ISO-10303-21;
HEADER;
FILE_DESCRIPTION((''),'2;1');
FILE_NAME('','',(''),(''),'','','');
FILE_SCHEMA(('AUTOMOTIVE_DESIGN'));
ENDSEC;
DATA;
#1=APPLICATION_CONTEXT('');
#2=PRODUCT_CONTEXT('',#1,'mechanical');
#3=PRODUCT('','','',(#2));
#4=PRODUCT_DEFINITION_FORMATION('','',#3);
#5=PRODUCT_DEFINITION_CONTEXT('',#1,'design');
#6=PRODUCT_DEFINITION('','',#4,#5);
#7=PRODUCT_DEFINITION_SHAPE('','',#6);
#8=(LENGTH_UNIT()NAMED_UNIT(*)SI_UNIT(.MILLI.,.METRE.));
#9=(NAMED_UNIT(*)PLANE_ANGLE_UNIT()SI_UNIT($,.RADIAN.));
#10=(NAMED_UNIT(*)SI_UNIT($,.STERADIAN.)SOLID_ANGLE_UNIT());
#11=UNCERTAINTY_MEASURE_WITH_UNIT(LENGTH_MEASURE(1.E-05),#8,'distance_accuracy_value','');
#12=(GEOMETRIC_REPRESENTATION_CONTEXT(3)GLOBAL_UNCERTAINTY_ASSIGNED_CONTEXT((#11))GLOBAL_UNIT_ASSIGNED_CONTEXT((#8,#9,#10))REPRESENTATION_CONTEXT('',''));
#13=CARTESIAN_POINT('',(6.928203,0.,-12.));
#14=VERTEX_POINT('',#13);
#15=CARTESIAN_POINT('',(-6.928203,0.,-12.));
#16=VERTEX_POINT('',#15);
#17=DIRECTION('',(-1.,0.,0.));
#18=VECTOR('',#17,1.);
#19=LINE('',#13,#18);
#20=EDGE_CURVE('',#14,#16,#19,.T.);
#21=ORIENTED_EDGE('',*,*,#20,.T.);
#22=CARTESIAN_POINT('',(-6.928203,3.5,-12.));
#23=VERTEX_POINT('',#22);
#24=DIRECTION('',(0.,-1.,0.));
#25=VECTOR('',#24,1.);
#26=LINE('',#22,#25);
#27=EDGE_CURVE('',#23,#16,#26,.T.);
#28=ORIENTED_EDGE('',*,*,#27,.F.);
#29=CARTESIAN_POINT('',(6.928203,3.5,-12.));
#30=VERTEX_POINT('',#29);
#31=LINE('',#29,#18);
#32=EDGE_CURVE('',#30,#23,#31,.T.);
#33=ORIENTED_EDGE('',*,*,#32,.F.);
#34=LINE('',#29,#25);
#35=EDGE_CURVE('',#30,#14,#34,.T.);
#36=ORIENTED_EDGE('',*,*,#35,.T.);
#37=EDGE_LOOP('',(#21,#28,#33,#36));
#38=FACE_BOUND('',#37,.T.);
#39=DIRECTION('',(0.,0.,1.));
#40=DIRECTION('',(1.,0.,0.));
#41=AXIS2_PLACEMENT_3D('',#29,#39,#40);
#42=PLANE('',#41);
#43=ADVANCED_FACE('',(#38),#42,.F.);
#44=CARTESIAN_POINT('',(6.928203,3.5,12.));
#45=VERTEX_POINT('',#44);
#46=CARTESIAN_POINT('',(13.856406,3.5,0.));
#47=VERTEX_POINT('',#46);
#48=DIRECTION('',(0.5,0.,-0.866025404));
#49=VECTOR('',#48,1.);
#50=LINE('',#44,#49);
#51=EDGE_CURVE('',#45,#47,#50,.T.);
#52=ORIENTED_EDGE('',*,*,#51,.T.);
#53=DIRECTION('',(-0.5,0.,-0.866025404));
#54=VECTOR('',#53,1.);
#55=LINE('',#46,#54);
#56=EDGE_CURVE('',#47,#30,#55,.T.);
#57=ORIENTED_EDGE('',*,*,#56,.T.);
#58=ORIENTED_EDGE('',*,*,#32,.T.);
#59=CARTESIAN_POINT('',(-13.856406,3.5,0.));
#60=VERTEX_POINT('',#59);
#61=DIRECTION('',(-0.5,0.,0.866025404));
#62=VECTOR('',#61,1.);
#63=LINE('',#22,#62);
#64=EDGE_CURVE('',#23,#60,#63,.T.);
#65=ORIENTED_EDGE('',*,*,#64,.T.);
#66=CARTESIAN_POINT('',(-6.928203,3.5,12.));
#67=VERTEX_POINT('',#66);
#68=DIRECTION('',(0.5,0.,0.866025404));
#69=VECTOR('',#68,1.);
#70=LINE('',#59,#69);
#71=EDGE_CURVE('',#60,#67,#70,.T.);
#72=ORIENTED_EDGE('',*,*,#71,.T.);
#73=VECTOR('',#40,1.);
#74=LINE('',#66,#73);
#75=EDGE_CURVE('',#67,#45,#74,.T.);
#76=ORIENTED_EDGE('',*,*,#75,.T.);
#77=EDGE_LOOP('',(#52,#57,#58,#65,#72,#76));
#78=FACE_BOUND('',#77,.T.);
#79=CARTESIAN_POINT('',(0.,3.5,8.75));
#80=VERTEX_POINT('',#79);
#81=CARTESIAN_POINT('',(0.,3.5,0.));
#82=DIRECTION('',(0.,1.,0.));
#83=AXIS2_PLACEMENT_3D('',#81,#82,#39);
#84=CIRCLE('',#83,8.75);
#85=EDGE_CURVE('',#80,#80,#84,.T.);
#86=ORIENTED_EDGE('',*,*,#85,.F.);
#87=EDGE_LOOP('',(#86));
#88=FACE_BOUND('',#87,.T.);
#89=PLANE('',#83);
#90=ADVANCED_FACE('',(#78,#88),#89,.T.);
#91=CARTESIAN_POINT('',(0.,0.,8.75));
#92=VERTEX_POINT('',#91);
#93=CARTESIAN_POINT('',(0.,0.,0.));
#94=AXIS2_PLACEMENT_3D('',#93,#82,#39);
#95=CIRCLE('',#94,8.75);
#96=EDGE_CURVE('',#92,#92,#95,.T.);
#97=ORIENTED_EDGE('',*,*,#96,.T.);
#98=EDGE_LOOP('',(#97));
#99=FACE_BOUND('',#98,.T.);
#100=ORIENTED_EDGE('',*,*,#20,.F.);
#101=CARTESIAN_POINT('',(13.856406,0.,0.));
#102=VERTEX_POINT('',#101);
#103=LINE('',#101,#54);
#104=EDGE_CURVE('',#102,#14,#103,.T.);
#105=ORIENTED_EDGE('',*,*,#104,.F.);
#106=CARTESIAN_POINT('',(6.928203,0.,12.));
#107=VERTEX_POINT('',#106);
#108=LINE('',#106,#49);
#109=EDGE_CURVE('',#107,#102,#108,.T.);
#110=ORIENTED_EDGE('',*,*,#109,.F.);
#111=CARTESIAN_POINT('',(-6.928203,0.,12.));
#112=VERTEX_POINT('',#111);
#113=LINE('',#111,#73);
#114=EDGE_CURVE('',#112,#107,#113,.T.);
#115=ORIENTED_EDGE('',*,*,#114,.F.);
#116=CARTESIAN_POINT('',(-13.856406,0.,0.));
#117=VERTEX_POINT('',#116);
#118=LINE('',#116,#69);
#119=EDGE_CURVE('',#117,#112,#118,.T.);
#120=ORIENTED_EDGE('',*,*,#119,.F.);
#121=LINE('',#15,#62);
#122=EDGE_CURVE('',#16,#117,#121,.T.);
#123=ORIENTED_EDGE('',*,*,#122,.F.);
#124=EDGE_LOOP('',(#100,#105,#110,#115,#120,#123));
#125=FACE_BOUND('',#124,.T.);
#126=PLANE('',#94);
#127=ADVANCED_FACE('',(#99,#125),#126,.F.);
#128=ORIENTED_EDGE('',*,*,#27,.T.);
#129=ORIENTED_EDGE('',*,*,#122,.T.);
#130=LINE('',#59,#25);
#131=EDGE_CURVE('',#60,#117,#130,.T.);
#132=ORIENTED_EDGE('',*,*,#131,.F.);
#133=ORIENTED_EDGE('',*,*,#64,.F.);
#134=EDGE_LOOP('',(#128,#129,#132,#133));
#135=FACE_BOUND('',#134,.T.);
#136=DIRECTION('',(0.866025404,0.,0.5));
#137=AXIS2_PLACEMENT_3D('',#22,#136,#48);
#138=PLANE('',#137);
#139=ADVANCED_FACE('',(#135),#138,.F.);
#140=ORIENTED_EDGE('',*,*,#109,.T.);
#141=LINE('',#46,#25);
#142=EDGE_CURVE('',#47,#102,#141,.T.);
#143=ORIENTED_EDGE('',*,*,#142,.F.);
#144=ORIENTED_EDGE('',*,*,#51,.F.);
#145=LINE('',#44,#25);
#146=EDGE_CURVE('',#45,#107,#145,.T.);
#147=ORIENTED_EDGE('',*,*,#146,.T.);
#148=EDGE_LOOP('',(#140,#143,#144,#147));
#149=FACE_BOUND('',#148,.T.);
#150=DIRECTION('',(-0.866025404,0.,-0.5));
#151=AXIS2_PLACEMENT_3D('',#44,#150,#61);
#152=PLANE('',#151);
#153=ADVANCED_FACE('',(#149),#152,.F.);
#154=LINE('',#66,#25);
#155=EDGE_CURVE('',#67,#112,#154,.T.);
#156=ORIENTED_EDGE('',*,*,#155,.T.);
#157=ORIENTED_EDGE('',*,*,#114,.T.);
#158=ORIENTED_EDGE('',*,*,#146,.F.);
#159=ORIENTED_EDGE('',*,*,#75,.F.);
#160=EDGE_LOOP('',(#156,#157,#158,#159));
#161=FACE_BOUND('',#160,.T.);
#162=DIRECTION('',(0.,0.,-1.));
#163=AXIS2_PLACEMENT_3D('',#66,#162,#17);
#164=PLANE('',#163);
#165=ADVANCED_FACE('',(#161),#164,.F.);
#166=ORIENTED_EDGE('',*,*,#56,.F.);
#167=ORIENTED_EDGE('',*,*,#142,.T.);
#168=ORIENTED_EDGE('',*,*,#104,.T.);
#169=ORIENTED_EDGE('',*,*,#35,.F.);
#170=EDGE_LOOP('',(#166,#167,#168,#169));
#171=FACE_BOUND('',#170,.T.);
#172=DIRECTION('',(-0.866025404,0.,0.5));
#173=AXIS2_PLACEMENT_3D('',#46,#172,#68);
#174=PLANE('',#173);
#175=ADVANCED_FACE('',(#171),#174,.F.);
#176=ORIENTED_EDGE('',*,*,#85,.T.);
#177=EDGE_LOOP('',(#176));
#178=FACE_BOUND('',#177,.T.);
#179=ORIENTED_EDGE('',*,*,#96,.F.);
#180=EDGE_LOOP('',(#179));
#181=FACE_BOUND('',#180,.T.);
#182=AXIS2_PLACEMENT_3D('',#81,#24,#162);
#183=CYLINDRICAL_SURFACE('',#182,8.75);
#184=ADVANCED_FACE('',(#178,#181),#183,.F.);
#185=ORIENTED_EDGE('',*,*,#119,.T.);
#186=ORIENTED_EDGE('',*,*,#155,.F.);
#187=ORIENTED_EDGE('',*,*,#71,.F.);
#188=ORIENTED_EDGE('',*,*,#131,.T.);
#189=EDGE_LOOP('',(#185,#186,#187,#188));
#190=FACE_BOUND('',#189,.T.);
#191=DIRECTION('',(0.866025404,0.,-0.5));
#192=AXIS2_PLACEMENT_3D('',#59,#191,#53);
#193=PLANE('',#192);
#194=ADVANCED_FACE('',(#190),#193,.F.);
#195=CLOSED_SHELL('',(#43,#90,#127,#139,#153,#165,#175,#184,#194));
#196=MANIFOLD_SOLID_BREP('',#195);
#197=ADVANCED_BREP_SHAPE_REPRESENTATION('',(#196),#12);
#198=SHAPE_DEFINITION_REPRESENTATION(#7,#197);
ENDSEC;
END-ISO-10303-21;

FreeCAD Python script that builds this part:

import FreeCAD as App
import Part
import Sketcher

V = App.Vector
Q = App.Units.Quantity


def add_polygon(sketch, points):
    """Adds a closed chain of lines whose ends are joined by coincident constraints."""
    first, n = sketch.GeometryCount, len(points)
    for a, b in zip(points, points[1:] + points[:1]):
        sketch.addGeometry(Part.LineSegment(App.Vector(*a, 0), App.Vector(*b, 0)), False)
    for i in range(n):
        sketch.addConstraint(Sketcher.Constraint("Coincident", first + i, 2, first + (i + 1) % n, 1))

doc = App.newDocument("Part")
body = doc.addObject("PartDesign::Body", "Body")

# Sketch on XZ plane
sketch1 = doc.addObject("Sketcher::SketchObject", "Sketch")
body.addObject(sketch1)
sketch1.AttachmentSupport = (doc.XZ_Plane, [""])
sketch1.MapMode = "FlatFace"
add_polygon(sketch1, [(-6.928203, 12), (6.928203, 12), (13.856406, 0), (6.928203, -12), (-6.928203, -12), (-13.856406, 0)])  # lines 0-5
sketch1.addGeometry(Part.Circle(V(0, 0, 0), V(0, 0, 1), 8.75), False)  # 6
sketch1.addConstraint(Sketcher.Constraint("Horizontal", 0))
sketch1.addConstraint(Sketcher.Constraint("Horizontal", 3))
sketch1.addConstraint(Sketcher.Constraint("Coincident", 6, 3, -1, 1))
sketch1.addConstraint(Sketcher.Constraint("Symmetric", 0, 2, 3, 2, -1, 1))
sketch1.addConstraint(Sketcher.Constraint("Symmetric", 1, 2, 4, 2, -1, 1))
sketch1.addConstraint(Sketcher.Constraint("PointOnObject", 1, 2, -1))
sketch1.addConstraint(Sketcher.Constraint("Parallel", 2, 5))
sketch1.addConstraint(Sketcher.Constraint("Vertical", 0, 2, 2, 2))
sketch1.addConstraint(Sketcher.Constraint("Diameter", 6, Q("17.5 mm")))
sketch1.addConstraint(Sketcher.Constraint("Angle", 1, Q("-60 deg")))
sketch1.addConstraint(Sketcher.Constraint("DistanceY", -1, 1, 0, 2, Q("12 mm")))
sketch1.addConstraint(Sketcher.Constraint("DistanceX", 0, 1, 0, 2, Q("13.856406 mm")))
pad1 = doc.addObject("PartDesign::Pad", "Pad")
body.addObject(pad1)
pad1.Profile = sketch1
pad1.Length = 3.5
pad1.Reversed = True

doc.recompute()
